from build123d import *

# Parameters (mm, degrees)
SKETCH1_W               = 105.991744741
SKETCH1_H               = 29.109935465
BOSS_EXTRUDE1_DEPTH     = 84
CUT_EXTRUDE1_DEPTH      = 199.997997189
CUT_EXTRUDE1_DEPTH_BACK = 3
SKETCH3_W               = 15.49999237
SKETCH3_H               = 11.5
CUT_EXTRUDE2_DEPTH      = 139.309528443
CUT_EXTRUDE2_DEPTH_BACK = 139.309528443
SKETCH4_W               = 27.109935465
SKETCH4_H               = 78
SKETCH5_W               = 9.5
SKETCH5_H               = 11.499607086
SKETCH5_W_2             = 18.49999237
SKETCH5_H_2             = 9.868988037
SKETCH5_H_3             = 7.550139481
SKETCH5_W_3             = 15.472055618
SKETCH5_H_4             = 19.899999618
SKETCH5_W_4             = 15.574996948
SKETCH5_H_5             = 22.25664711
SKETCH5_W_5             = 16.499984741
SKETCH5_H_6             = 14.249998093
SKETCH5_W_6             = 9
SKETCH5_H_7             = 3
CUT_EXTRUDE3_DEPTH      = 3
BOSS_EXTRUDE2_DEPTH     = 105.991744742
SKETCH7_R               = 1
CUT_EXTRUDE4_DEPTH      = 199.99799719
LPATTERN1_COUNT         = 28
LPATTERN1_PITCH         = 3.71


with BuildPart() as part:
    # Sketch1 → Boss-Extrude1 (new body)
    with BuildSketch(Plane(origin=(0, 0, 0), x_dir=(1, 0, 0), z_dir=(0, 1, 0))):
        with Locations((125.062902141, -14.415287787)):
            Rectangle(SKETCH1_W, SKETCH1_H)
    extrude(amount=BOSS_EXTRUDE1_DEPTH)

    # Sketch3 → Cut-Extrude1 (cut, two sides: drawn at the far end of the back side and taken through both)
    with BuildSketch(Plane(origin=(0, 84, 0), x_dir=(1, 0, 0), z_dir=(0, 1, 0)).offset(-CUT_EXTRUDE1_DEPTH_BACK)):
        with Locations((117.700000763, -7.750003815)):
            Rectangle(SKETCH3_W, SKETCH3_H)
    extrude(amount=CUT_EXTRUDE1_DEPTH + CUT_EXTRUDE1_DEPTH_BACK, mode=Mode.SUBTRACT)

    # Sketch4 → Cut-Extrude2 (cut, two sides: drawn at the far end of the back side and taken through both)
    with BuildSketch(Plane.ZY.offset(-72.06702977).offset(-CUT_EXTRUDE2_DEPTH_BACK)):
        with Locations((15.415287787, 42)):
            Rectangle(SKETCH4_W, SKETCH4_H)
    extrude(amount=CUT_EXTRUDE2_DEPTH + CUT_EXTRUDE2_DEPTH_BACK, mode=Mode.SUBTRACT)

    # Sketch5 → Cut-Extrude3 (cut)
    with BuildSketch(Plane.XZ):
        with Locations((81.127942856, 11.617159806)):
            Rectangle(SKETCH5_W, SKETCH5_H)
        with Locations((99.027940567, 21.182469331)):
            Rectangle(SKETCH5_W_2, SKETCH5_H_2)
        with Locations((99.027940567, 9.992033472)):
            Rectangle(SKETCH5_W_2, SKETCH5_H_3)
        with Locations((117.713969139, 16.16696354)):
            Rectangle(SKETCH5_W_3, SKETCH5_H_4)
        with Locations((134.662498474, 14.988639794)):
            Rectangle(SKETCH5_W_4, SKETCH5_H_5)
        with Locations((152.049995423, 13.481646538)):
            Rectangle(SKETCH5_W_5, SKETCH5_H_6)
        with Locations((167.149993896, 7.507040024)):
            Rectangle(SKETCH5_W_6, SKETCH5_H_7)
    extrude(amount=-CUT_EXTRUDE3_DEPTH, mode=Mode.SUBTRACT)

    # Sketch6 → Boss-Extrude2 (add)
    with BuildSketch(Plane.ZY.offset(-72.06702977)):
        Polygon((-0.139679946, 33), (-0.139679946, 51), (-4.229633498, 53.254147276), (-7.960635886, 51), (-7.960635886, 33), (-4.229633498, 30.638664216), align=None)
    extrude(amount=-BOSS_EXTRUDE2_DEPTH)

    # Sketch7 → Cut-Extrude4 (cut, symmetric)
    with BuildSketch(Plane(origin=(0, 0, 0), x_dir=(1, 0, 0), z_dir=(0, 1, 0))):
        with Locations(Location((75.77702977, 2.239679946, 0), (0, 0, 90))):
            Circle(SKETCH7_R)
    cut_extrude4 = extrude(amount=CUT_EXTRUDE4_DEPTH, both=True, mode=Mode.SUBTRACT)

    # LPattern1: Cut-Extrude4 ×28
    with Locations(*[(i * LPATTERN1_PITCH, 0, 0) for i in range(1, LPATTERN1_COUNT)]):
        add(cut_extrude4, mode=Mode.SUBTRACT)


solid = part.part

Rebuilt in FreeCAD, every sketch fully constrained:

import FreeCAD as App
import Part
import Sketcher
from FreeCAD import Vector
Q = App.Units.Quantity


def add_polygon(sketch, points):
    """Adds a closed chain of lines whose ends are joined by coincident constraints."""
    first, n = sketch.GeometryCount, len(points)
    for a, b in zip(points, points[1:] + points[:1]):
        sketch.addGeometry(Part.LineSegment(App.Vector(*a, 0), App.Vector(*b, 0)), False)
    for i in range(n):
        sketch.addConstraint(Sketcher.Constraint("Coincident", first + i, 2, first + (i + 1) % n, 1))

doc = App.newDocument("Part")
body = doc.addObject("PartDesign::Body", "Body")

sketch1 = doc.addObject("Sketcher::SketchObject", "Sketch")
body.addObject(sketch1)
sketch1.AttachmentSupport = (doc.XZ_Plane, [""])
sketch1.MapMode = "FlatFace"
add_polygon(sketch1, [(72.06703, -0.13968), (72.06703, 28.970256), (178.058775, 28.970256), (178.058775, -0.13968)])
sketch1.addConstraint([
    Sketcher.Constraint("Vertical", 0),
    Sketcher.Constraint("Horizontal", 1),
    Sketcher.Constraint("Vertical", 2),
    Sketcher.Constraint("Horizontal", 3),
    Sketcher.Constraint("DistanceX", 1, 1, 1, 2, 105.991745),
    Sketcher.Constraint("DistanceY", 0, 1, 0, 2, 29.109935),
    Sketcher.Constraint("DistanceX", -1, 1, 0, 2, 72.06703),
    Sketcher.Constraint("DistanceY", 2, 2, -1, 1, 0.13968),
])
pad1 = doc.addObject("PartDesign::Pad", "Pad")
body.addObject(pad1)
pad1.Profile = sketch1
pad1.Length = 84
pad1.Reversed = True

sketch2 = doc.addObject("Sketcher::SketchObject", "Sketch001")
body.addObject(sketch2)
sketch2.AttachmentSupport = (doc.XZ_Plane, [""])
sketch2.MapMode = "FlatFace"
sketch2.AttachmentOffset = App.Placement(Vector(0, 0, -84), App.Rotation())
add_polygon(sketch2, [(109.950005, 2.000004), (109.950005, 13.500004), (125.449997, 13.500004), (125.449997, 2.000004)])
sketch2.addConstraint([
    Sketcher.Constraint("Vertical", 0),
    Sketcher.Constraint("Horizontal", 1),
    Sketcher.Constraint("Vertical", 2),
    Sketcher.Constraint("Horizontal", 3),
    Sketcher.Constraint("DistanceY", 0, 1, 0, 2, 11.5),
    Sketcher.Constraint("DistanceX", 1, 1, 1, 2, 15.499992),
    Sketcher.Constraint("DistanceX", -1, 1, 0, 2, 109.950005),
    Sketcher.Constraint("DistanceY", -1, 1, 0, 2, 13.500004),
])
pocket1 = doc.addObject("PartDesign::Pocket", "Pocket")
body.addObject(pocket1)
pocket1.Profile = sketch2
pocket1.Type = "TwoLengths"
pocket1.Length = 199.997997
pocket1.Length2 = 3

sketch3 = doc.addObject("Sketcher::SketchObject", "Sketch002")
body.addObject(sketch3)
sketch3.AttachmentSupport = (doc.YZ_Plane, [""])
sketch3.MapMode = "FlatFace"
sketch3.AttachmentOffset = App.Placement(Vector(0, 0, 72.06703), App.Rotation())
add_polygon(sketch3, [(81, 1.86032), (3, 1.86032), (3, 28.970256), (81, 28.970256)])
sketch3.addConstraint([
    Sketcher.Constraint("Horizontal", 0),
    Sketcher.Constraint("Vertical", 1),
    Sketcher.Constraint("Horizontal", 2),
    Sketcher.Constraint("Vertical", 3),
    Sketcher.Constraint("DistanceX", 0, 2, 0, 1, 78.0),
    Sketcher.Constraint("DistanceX", -1, 1, 0, 2, 3.0),
    Sketcher.Constraint("DistanceY", 1, 1, 1, 2, 27.109935),
    Sketcher.Constraint("DistanceY", -1, 1, 0, 2, 1.86032),
])
pocket2 = doc.addObject("PartDesign::Pocket", "Pocket001")
body.addObject(pocket2)
pocket2.Profile = sketch3
pocket2.Type = "ThroughAll"
pocket2.Midplane = True

sketch4 = doc.addObject("Sketcher::SketchObject", "Sketch003")
body.addObject(sketch4)
sketch4.AttachmentSupport = (doc.XZ_Plane, [""])
sketch4.MapMode = "FlatFace"
add_polygon(sketch4, [(76.377943, 17.366963), (76.377943, 5.867356), (85.877943, 5.867356), (85.877943, 17.366963)])
add_polygon(sketch4, [(89.777944, 26.116963), (89.777944, 16.247975), (108.277937, 16.247975), (108.277937, 26.116963)])
add_polygon(sketch4, [(89.777944, 13.767103), (89.777944, 6.216964), (108.277937, 6.216964), (108.277937, 13.767103)])
add_polygon(sketch4, [(109.977941, 26.116963), (109.977941, 6.216964), (125.449997, 6.216964), (125.449997, 26.116963)])
add_polygon(sketch4, [(126.875, 26.116963), (126.875, 3.860316), (142.449997, 3.860316), (142.449997, 26.116963)])
add_polygon(sketch4, [(143.800003, 20.606646), (143.800003, 6.356647), (160.299988, 6.356647), (160.299988, 20.606646)])
add_polygon(sketch4, [(162.649994, 9.00704), (162.649994, 6.00704), (171.649994, 6.00704), (171.649994, 9.00704)])
sketch4.addConstraint([
    Sketcher.Constraint("Vertical", 0),
    Sketcher.Constraint("Horizontal", 1),
    Sketcher.Constraint("Vertical", 2),
    Sketcher.Constraint("Horizontal", 3),
    Sketcher.Constraint("Vertical", 4),
    Sketcher.Constraint("Horizontal", 5),
    Sketcher.Constraint("Vertical", 6),
    Sketcher.Constraint("Horizontal", 7),
    Sketcher.Constraint("Vertical", 8),
    Sketcher.Constraint("Horizontal", 9),
    Sketcher.Constraint("Vertical", 10),
    Sketcher.Constraint("Horizontal", 11),
    Sketcher.Constraint("Vertical", 12),
    Sketcher.Constraint("Horizontal", 13),
    Sketcher.Constraint("Vertical", 14),
    Sketcher.Constraint("Horizontal", 15),
    Sketcher.Constraint("Vertical", 16),
    Sketcher.Constraint("Horizontal", 17),
    Sketcher.Constraint("Vertical", 18),
    Sketcher.Constraint("Horizontal", 19),
    Sketcher.Constraint("Vertical", 20),
    Sketcher.Constraint("Horizontal", 21),
    Sketcher.Constraint("Vertical", 22),
    Sketcher.Constraint("Horizontal", 23),
    Sketcher.Constraint("Vertical", 24),
    Sketcher.Constraint("Horizontal", 25),
    Sketcher.Constraint("Vertical", 26),
    Sketcher.Constraint("Horizontal", 27),
    Sketcher.Constraint("Horizontal", 9, 2, 12, 2),
    Sketcher.Constraint("Horizontal", 7, 2, 14, 2),
    Sketcher.Constraint("Horizontal", 15, 2, 18, 2),
    Sketcher.Constraint("Vertical", 7, 2, 8, 2),
    Sketcher.Constraint("Vertical", 6, 2, 9, 2),
    Sketcher.Constraint("DistanceX", 25, 1, 25, 2, 9.0),
    Sketcher.Constraint("DistanceY", 24, 2, 24, 1, 3.0),
    Sketcher.Constraint("DistanceX", 1, 1, 1, 2, 9.5),
    Sketcher.Constraint("DistanceY", 12, 2, 12, 1, 19.9),
    Sketcher.Constraint("DistanceX", 13, 2, 17, 2, 17.0),
    Sketcher.Constraint("DistanceY", 20, 2, 20, 1, 14.249998),
    Sketcher.Constraint("DistanceX", 2, 2, 4, 2, 3.900002),
    Sketcher.Constraint("DistanceY", 2, 2, 6, 2, 8.75),
    Sketcher.Constraint("DistanceX", -1, 1, 16, 2, 126.875),
    Sketcher.Constraint("DistanceY", 4, 2, 4, 1, 9.868988),
    Sketcher.Constraint("DistanceY", 8, 2, 8, 1, 7.550139),
    Sketcher.Constraint("DistanceX", 5, 1, 5, 2, 18.499992),
    Sketcher.Constraint("DistanceX", 13, 1, 13, 2, 15.472056),
    Sketcher.Constraint("DistanceX", 17, 1, 17, 2, 15.574997),
    Sketcher.Constraint("DistanceX", 21, 1, 21, 2, 16.499985),
    Sketcher.Constraint("DistanceY", 0, 2, 0, 1, 11.499607),
    Sketcher.Constraint("DistanceY", 16, 2, 16, 1, 22.256647),
    Sketcher.Constraint("DistanceY", -1, 1, 24, 2, 6.00704),
    Sketcher.Constraint("DistanceX", 9, 2, 13, 2, 17.17206),
    Sketcher.Constraint("DistanceY", 17, 2, 20, 2, 2.496331),
    Sketcher.Constraint("DistanceX", 17, 2, 21, 2, 17.849991),
    Sketcher.Constraint("DistanceX", 20, 2, 24, 2, 18.849991),
    Sketcher.Constraint("DistanceY", -1, 1, 0, 2, 5.867356),
])
pocket3 = doc.addObject("PartDesign::Pocket", "Pocket002")
body.addObject(pocket3)
pocket3.Profile = sketch4
pocket3.Length = 3

sketch5 = doc.addObject("Sketcher::SketchObject", "Sketch004")
body.addObject(sketch5)
sketch5.AttachmentSupport = (doc.YZ_Plane, [""])
sketch5.MapMode = "FlatFace"
sketch5.AttachmentOffset = App.Placement(Vector(0, 0, 72.06703), App.Rotation())
add_polygon(sketch5, [(33, -0.13968), (51, -0.13968), (53.254147, -4.229633), (51, -7.960636), (33, -7.960636), (30.638664, -4.229633)])
sketch5.addConstraint([
    Sketcher.Constraint("Horizontal", 0),
    Sketcher.Constraint("Horizontal", 3),
    Sketcher.Constraint("Horizontal", 1, 2, 4, 2),
    Sketcher.Constraint("Vertical", 0, 2, 2, 2),
    Sketcher.Constraint("Vertical", 3, 2, 5, 2),
    Sketcher.Constraint("DistanceX", 0, 1, 0, 2, 18.0),
    Sketcher.Constraint("Angle", 5, Q("60 deg")),
    Sketcher.Constraint("DistanceX", -1, 1, 0, 2, 51.0),
    Sketcher.Constraint("Distance", 1, 4.67),
    Sketcher.Constraint("Distance", 4, 4.41546),
    Sketcher.Constraint("Distance", 5, 4.722672),
    Sketcher.Constraint("DistanceY", 0, 2, -1, 1, 0.13968),
])
pad2 = doc.addObject("PartDesign::Pad", "Pad001")
body.addObject(pad2)
pad2.Profile = sketch5
pad2.Length = 105.991745

sketch6 = doc.addObject("Sketcher::SketchObject", "Sketch005")
body.addObject(sketch6)
sketch6.AttachmentSupport = (doc.XZ_Plane, [""])
sketch6.MapMode = "FlatFace"
sketch6.addGeometry(Part.Circle(Vector(75.77703, -2.23968, 0), Vector(0, 0, 1), 1), False)
sketch6.addConstraint([
    Sketcher.Constraint("Diameter", 0, 2.0),
    Sketcher.Constraint("DistanceX", -1, 1, 0, 3, 75.77703),
    Sketcher.Constraint("DistanceY", 0, 3, -1, 1, 2.23968),
])
pocket4 = doc.addObject("PartDesign::Pocket", "Pocket003")
body.addObject(pocket4)
pocket4.Profile = sketch6
pocket4.Length = 399.995994
pocket4.Midplane = True
doc.recompute()

linearpattern = doc.addObject("PartDesign::LinearPattern", "LinearPattern")
body.addObject(linearpattern)
linearpattern.Originals = [pocket4]
linearpattern.Direction = (doc.X_Axis, [""])
linearpattern.Mode = "offset"
linearpattern.Offset = 3.71
linearpattern.Occurrences = 28
body.Tip = linearpattern

doc.recompute()
